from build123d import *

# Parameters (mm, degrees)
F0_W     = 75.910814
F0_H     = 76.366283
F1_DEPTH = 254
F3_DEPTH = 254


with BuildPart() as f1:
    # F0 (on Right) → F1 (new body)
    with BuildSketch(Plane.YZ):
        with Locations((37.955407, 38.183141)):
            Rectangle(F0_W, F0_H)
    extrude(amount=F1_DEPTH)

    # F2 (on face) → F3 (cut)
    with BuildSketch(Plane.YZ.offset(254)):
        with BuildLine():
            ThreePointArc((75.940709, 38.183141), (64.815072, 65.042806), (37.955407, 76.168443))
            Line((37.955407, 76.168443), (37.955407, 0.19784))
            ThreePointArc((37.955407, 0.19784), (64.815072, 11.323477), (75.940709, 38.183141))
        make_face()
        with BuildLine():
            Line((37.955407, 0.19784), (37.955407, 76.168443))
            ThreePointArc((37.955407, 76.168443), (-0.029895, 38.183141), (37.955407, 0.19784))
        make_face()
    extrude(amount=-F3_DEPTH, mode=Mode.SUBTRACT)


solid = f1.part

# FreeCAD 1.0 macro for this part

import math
import FreeCAD as App
import Part
import Sketcher
from FreeCAD import Vector
Q = App.Units.Quantity


def add_polygon(sketch, points):
    """Adds a closed chain of lines whose ends are joined by coincident constraints."""
    first, n = sketch.GeometryCount, len(points)
    for a, b in zip(points, points[1:] + points[:1]):
        sketch.addGeometry(Part.LineSegment(App.Vector(*a, 0), App.Vector(*b, 0)), False)
    for i in range(n):
        sketch.addConstraint(Sketcher.Constraint("Coincident", first + i, 2, first + (i + 1) % n, 1))

doc = App.newDocument("Part")
body = doc.addObject("PartDesign::Body", "Body")
body.AllowCompound = True

# Sketch on YZ plane
sketch1 = doc.addObject("Sketcher::SketchObject", "Sketch")
body.addObject(sketch1)
sketch1.AttachmentSupport = (doc.YZ_Plane, [""])
sketch1.MapMode = "FlatFace"
add_polygon(sketch1, [(0, 76), (0, 0), (76, 0), (76, 76)])  # lines 0-3
sketch1.addConstraint(Sketcher.Constraint("Vertical", 0))
sketch1.addConstraint(Sketcher.Constraint("Horizontal", 1))
sketch1.addConstraint(Sketcher.Constraint("Vertical", 2))
sketch1.addConstraint(Sketcher.Constraint("Horizontal", 3))
sketch1.addConstraint(Sketcher.Constraint("Coincident", 0, 2, -1, 1))
sketch1.addConstraint(Sketcher.Constraint("DistanceX", 1, 1, 1, 2, 75.910814))
sketch1.addConstraint(Sketcher.Constraint("DistanceY", 0, 2, 0, 1, 76.366283))
pad1 = doc.addObject("PartDesign::Pad", "Pad")
body.addObject(pad1)
pad1.Profile = sketch1
pad1.Length = Q("10 in")

# Sketch on YZ plane
sketch2 = doc.addObject("Sketcher::SketchObject", "Sketch001")
body.addObject(sketch2)
sketch2.AttachmentSupport = (doc.YZ_Plane, [""])
sketch2.MapMode = "FlatFace"
sketch2.AttachmentOffset = App.Placement(Vector(0, 0, 10 * 25.4), App.Rotation())
sketch2.addGeometry(Part.ArcOfCircle(Part.Circle(Vector(38, 38, 0), Vector(0, 0, 1), 38), math.radians(0), math.radians(90)), False)
sketch2.addGeometry(Part.ArcOfCircle(Part.Circle(Vector(38, 38, 0), Vector(0, 0, 1), 38), math.radians(90), math.radians(270)), False)
sketch2.addGeometry(Part.ArcOfCircle(Part.Circle(Vector(38, 38, 0), Vector(0, 0, 1), 38), math.radians(-90), math.radians(0)), False)
sketch2.addConstraint(Sketcher.Constraint("Tangent", 0, 2, 1, 1))
sketch2.addConstraint(Sketcher.Constraint("Tangent", 1, 2, 2, 1))
sketch2.addConstraint(Sketcher.Constraint("Tangent", 2, 2, 0, 1))
sketch2.addConstraint(Sketcher.Constraint("Horizontal", 1, 3, 2, 2))
sketch2.addConstraint(Sketcher.Constraint("Vertical", 2, 3, 0, 2))
sketch2.addConstraint(Sketcher.Constraint("Vertical", 0, 2, 1, 2))
sketch2.addConstraint(Sketcher.Constraint("Radius", 0, 37.985301))
sketch2.addConstraint(Sketcher.Constraint("DistanceX", -1, 1, 0, 3, 37.955408))
sketch2.addConstraint(Sketcher.Constraint("DistanceY", -1, 1, 1, 3, 38.183141))
pocket1 = doc.addObject("PartDesign::Pocket", "Pocket")
body.addObject(pocket1)
pocket1.Profile = sketch2
pocket1.Length = Q("10 in")

doc.recompute()
